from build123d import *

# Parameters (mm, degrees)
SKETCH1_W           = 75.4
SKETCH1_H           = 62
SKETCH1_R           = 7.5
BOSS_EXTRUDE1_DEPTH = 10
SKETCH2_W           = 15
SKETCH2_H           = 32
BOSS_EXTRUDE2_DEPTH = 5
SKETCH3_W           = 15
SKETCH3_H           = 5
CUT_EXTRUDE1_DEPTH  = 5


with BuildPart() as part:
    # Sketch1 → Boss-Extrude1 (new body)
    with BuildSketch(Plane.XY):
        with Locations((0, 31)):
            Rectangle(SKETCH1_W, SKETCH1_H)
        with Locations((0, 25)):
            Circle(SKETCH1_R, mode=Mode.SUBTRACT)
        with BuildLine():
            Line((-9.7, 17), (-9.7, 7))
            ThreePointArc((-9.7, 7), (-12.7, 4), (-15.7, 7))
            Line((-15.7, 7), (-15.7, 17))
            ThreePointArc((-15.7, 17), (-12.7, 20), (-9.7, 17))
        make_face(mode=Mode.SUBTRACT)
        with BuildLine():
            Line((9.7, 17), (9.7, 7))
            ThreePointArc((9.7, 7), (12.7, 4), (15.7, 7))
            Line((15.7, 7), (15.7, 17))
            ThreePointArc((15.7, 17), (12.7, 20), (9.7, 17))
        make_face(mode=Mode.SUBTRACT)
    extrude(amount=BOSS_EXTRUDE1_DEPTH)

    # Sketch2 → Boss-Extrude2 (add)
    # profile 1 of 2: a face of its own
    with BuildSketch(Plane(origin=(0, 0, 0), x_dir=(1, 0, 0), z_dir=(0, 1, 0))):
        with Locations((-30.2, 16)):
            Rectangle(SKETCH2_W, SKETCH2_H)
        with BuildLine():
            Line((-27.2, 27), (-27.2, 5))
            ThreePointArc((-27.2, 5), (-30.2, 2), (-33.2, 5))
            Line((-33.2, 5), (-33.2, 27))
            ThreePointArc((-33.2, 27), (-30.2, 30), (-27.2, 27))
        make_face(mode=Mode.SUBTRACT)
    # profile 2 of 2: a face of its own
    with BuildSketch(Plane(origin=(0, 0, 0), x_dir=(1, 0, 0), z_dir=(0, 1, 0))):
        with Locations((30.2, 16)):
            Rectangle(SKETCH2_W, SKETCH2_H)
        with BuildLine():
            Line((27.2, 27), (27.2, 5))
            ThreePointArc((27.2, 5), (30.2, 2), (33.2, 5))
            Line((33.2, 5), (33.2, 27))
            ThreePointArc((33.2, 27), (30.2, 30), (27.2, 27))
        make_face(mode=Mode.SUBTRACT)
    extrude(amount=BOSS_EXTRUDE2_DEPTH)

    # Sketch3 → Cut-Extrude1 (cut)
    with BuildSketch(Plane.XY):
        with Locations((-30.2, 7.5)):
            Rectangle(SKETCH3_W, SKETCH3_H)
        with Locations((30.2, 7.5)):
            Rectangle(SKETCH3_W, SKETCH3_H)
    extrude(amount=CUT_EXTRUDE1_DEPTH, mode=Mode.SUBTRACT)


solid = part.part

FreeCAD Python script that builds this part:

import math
import FreeCAD as App
import Part
import Sketcher
from FreeCAD import Vector

doc = App.newDocument("Part")
params = doc.addObject("Spreadsheet::Sheet", "Params")
for row, (alias, value) in enumerate([
    ("sketch1_diameter", "15 mm"),
    ("sketch1_radius", "3 mm"),
    ("sketch1_height", "62 mm"),
    ("sketch1_height2", "10 mm"),
    ("sketch1_width", "75.4 mm"),
    ("pad1_length", "10 mm"),
    ("sketch2_radius", "3 mm"),
    ("sketch2_width", "15 mm"),
    ("sketch2_height", "32 mm"),
    ("sketch2_height2", "22 mm"),
    ("pad2_length", "5 mm"),
    ("sketch3_width", "15 mm"),
    ("sketch3_height", "5 mm"),
    ("pocket1_length", "5 mm"),
], start=1):
    params.set(f"A{row}", alias)
    params.set(f"B{row}", "=" + value)
    params.setAlias(f"B{row}", alias)

body = doc.addObject("PartDesign::Body", "Body")

# Sketch on XY plane
sketch1 = doc.addObject("Sketcher::SketchObject", "Sketch")
body.addObject(sketch1)
sketch1.AttachmentSupport = (doc.XY_Plane, [""])
sketch1.MapMode = "FlatFace"
sketch1.addGeometry([
    Part.LineSegment(Vector(-37.7, 62, 0), Vector(-37.7, 0, 0)),  # 0
    Part.LineSegment(Vector(-37.7, 0, 0), Vector(37.7, 0, 0)),  # 1
    Part.LineSegment(Vector(37.7, 0, 0), Vector(37.7, 62, 0)),  # 2
    Part.LineSegment(Vector(37.7, 62, 0), Vector(-37.7, 62, 0)),  # 3
    Part.ArcOfCircle(Part.Circle(Vector(-12.7, 17, 0), Vector(0, 0, 1), 3), math.radians(0), math.radians(180)),  # 4
    Part.LineSegment(Vector(-9.7, 17, 0), Vector(-9.7, 7, 0)),  # 5
    Part.ArcOfCircle(Part.Circle(Vector(-12.7, 7, 0), Vector(0, 0, 1), 3), math.radians(180), math.radians(360)),  # 6
    Part.LineSegment(Vector(-15.7, 7, 0), Vector(-15.7, 17, 0)),  # 7
    Part.LineSegment(Vector(9.7, 7, 0), Vector(9.7, 17, 0)),  # 8
    Part.ArcOfCircle(Part.Circle(Vector(12.7, 17, 0), Vector(0, 0, 1), 3), math.radians(0), math.radians(180)),  # 9
    Part.LineSegment(Vector(15.7, 17, 0), Vector(15.7, 7, 0)),  # 10
    Part.ArcOfCircle(Part.Circle(Vector(12.7, 7, 0), Vector(0, 0, 1), 3), math.radians(180), math.radians(360)),  # 11
    Part.Circle(Vector(0, 25, 0), Vector(0, 0, 1), 7.5),  # 12
], False)
sketch1.addConstraint([
    Sketcher.Constraint("Coincident", 0, 2, 1, 1),
    Sketcher.Constraint("Coincident", 1, 2, 2, 1),
    Sketcher.Constraint("Coincident", 2, 2, 3, 1),
    Sketcher.Constraint("Coincident", 3, 2, 0, 1),
    Sketcher.Constraint("Tangent", 4, 1, 5, 1),
    Sketcher.Constraint("Tangent", 5, 2, 6, 2),
    Sketcher.Constraint("Tangent", 6, 1, 7, 1),
    Sketcher.Constraint("Tangent", 7, 2, 4, 2),
    Sketcher.Constraint("Tangent", 8, 2, 9, 2),
    Sketcher.Constraint("Tangent", 9, 1, 10, 1),
    Sketcher.Constraint("Tangent", 10, 2, 11, 2),
    Sketcher.Constraint("Tangent", 11, 1, 8, 1),
    Sketcher.Constraint("Vertical", 0),
    Sketcher.Constraint("Horizontal", 1),
    Sketcher.Constraint("Vertical", 2),
    Sketcher.Constraint("Horizontal", 3),
    Sketcher.Constraint("Vertical", 5),
    Sketcher.Constraint("Vertical", 7),
    Sketcher.Constraint("Vertical", 8),
    Sketcher.Constraint("Vertical", 10),
    Sketcher.Constraint("Equal", 6, 9),
    Sketcher.Constraint("Symmetric", 0, 2, 1, 2, -1, 1),
    Sketcher.Constraint("Symmetric", 4, 3, 9, 3, -2),
    Sketcher.Constraint("PointOnObject", 12, 3, -2),
    Sketcher.Constraint("Horizontal", 6, 3, 11, 3),
    Sketcher.Constraint("Diameter", 12, 15.0),
    Sketcher.Constraint("Radius", 4, 3.0),
    Sketcher.Constraint("DistanceY", 0, 2, 0, 1, 62.0),
    Sketcher.Constraint("DistanceY", 5, 2, 5, 1, 10.0),
    Sketcher.Constraint("DistanceX", 1, 1, 1, 2, 75.4),
    Sketcher.Constraint("DistanceY", -1, 1, 4, 3, 17.0),
    Sketcher.Constraint("DistanceY", -1, 1, 12, 3, 25.0),
    Sketcher.Constraint("DistanceX", 0, 2, 6, 3, 25.0),
])
sketch1.setExpression("Constraints[25]", "Params.sketch1_diameter")
sketch1.setExpression("Constraints[26]", "Params.sketch1_radius")
sketch1.setExpression("Constraints[27]", "Params.sketch1_height")
sketch1.setExpression("Constraints[28]", "Params.sketch1_height2")
sketch1.setExpression("Constraints[29]", "Params.sketch1_width")
pad1 = doc.addObject("PartDesign::Pad", "Pad")
body.addObject(pad1)
pad1.Profile = sketch1
pad1.setExpression("Length", "Params.pad1_length")

# Sketch on XZ plane
sketch2 = doc.addObject("Sketcher::SketchObject", "Sketch001")
body.addObject(sketch2)
sketch2.AttachmentSupport = (doc.XZ_Plane, [""])
sketch2.MapMode = "FlatFace"
sketch2.addGeometry([
    Part.LineSegment(Vector(-37.7, -32, 0), Vector(-37.7, 0, 0)),  # 0
    Part.LineSegment(Vector(-37.7, 0, 0), Vector(-22.7, 0, 0)),  # 1
    Part.LineSegment(Vector(-22.7, 0, 0), Vector(-22.7, -32, 0)),  # 2
    Part.LineSegment(Vector(-22.7, -32, 0), Vector(-37.7, -32, 0)),  # 3
    Part.ArcOfCircle(Part.Circle(Vector(-30.2, -27, 0), Vector(0, 0, 1), 3), math.radians(180), math.radians(360)),  # 4
    Part.LineSegment(Vector(-27.2, -27, 0), Vector(-27.2, -5, 0)),  # 5
    Part.ArcOfCircle(Part.Circle(Vector(-30.2, -5, 0), Vector(0, 0, 1), 3), math.radians(0), math.radians(180)),  # 6
    Part.LineSegment(Vector(-33.2, -5, 0), Vector(-33.2, -27, 0)),  # 7
    Part.LineSegment(Vector(22.7, -32, 0), Vector(22.7, 0, 0)),  # 8
    Part.LineSegment(Vector(22.7, 0, 0), Vector(37.7, 0, 0)),  # 9
    Part.LineSegment(Vector(37.7, 0, 0), Vector(37.7, -32, 0)),  # 10
    Part.LineSegment(Vector(37.7, -32, 0), Vector(22.7, -32, 0)),  # 11
    Part.LineSegment(Vector(27.2, -5, 0), Vector(27.2, -27, 0)),  # 12
    Part.ArcOfCircle(Part.Circle(Vector(30.2, -27, 0), Vector(0, 0, 1), 3), math.radians(180), math.radians(360)),  # 13
    Part.LineSegment(Vector(33.2, -27, 0), Vector(33.2, -5, 0)),  # 14
    Part.ArcOfCircle(Part.Circle(Vector(30.2, -5, 0), Vector(0, 0, 1), 3), math.radians(0), math.radians(180)),  # 15
], False)
sketch2.addConstraint([
    Sketcher.Constraint("Coincident", 0, 2, 1, 1),
    Sketcher.Constraint("Coincident", 1, 2, 2, 1),
    Sketcher.Constraint("Coincident", 2, 2, 3, 1),
    Sketcher.Constraint("Coincident", 3, 2, 0, 1),
    Sketcher.Constraint("Tangent", 4, 2, 5, 1),
    Sketcher.Constraint("Tangent", 5, 2, 6, 1),
    Sketcher.Constraint("Tangent", 6, 2, 7, 1),
    Sketcher.Constraint("Tangent", 7, 2, 4, 1),
    Sketcher.Constraint("Coincident", 8, 2, 9, 1),
    Sketcher.Constraint("Coincident", 9, 2, 10, 1),
    Sketcher.Constraint("Coincident", 10, 2, 11, 1),
    Sketcher.Constraint("Coincident", 11, 2, 8, 1),
    Sketcher.Constraint("Tangent", 12, 2, 13, 1),
    Sketcher.Constraint("Tangent", 13, 2, 14, 1),
    Sketcher.Constraint("Tangent", 14, 2, 15, 1),
    Sketcher.Constraint("Tangent", 15, 2, 12, 1),
    Sketcher.Constraint("Vertical", 0),
    Sketcher.Constraint("Horizontal", 1),
    Sketcher.Constraint("Vertical", 2),
    Sketcher.Constraint("Horizontal", 3),
    Sketcher.Constraint("Vertical", 5),
    Sketcher.Constraint("Vertical", 7),
    Sketcher.Constraint("Vertical", 8),
    Sketcher.Constraint("Horizontal", 9),
    Sketcher.Constraint("Vertical", 10),
    Sketcher.Constraint("Horizontal", 11),
    Sketcher.Constraint("Vertical", 12),
    Sketcher.Constraint("Vertical", 14),
    Sketcher.Constraint("Equal", 6, 13),
    Sketcher.Constraint("Symmetric", 1, 2, 8, 2, -1, 1),
    Sketcher.Constraint("Symmetric", 4, 3, 13, 3, -2),
    Sketcher.Constraint("Symmetric", 0, 2, 9, 2, -2),
    Sketcher.Constraint("Horizontal", 6, 3, 15, 3),
    Sketcher.Constraint("Horizontal", 3, 2, 10, 2),
    Sketcher.Constraint("Radius", 4, 3.0),
    Sketcher.Constraint("DistanceX", 1, 1, 1, 2, 15.0),
    Sketcher.Constraint("DistanceY", 0, 1, 0, 2, 32.0),
    Sketcher.Constraint("DistanceY", 5, 1, 5, 2, 22.0),
    Sketcher.Constraint("DistanceY", 4, 3, -1, 1, 27.0),
    Sketcher.Constraint("DistanceX", 4, 3, -1, 1, 30.2),
    Sketcher.Constraint("DistanceX", 0, 2, -1, 1, 37.7),
])
sketch2.setExpression("Constraints[34]", "Params.sketch2_radius")
sketch2.setExpression("Constraints[35]", "Params.sketch2_width")
sketch2.setExpression("Constraints[36]", "Params.sketch2_height")
sketch2.setExpression("Constraints[37]", "Params.sketch2_height2")
pad2 = doc.addObject("PartDesign::Pad", "Pad001")
body.addObject(pad2)
pad2.Profile = sketch2
pad2.setExpression("Length", "Params.pad2_length")
pad2.Reversed = True

# Sketch on XY plane
sketch3 = doc.addObject("Sketcher::SketchObject", "Sketch002")
body.addObject(sketch3)
sketch3.AttachmentSupport = (doc.XY_Plane, [""])
sketch3.MapMode = "FlatFace"
sketch3.addGeometry([
    Part.LineSegment(Vector(-38, 10, 0), Vector(-38, 5, 0)),  # 0
    Part.LineSegment(Vector(-38, 5, 0), Vector(-23, 5, 0)),  # 1
    Part.LineSegment(Vector(-23, 5, 0), Vector(-23, 10, 0)),  # 2
    Part.LineSegment(Vector(-23, 10, 0), Vector(-38, 10, 0)),  # 3
    Part.LineSegment(Vector(23, 10, 0), Vector(23, 5, 0)),  # 4
    Part.LineSegment(Vector(23, 5, 0), Vector(38, 5, 0)),  # 5
    Part.LineSegment(Vector(38, 5, 0), Vector(38, 10, 0)),  # 6
    Part.LineSegment(Vector(38, 10, 0), Vector(23, 10, 0)),  # 7
], False)
sketch3.addConstraint([
    Sketcher.Constraint("Coincident", 0, 2, 1, 1),
    Sketcher.Constraint("Coincident", 1, 2, 2, 1),
    Sketcher.Constraint("Coincident", 2, 2, 3, 1),
    Sketcher.Constraint("Coincident", 3, 2, 0, 1),
    Sketcher.Constraint("Coincident", 4, 2, 5, 1),
    Sketcher.Constraint("Coincident", 5, 2, 6, 1),
    Sketcher.Constraint("Coincident", 6, 2, 7, 1),
    Sketcher.Constraint("Coincident", 7, 2, 4, 1),
    Sketcher.Constraint("Vertical", 0),
    Sketcher.Constraint("Horizontal", 1),
    Sketcher.Constraint("Vertical", 2),
    Sketcher.Constraint("Horizontal", 3),
    Sketcher.Constraint("Vertical", 4),
    Sketcher.Constraint("Horizontal", 5),
    Sketcher.Constraint("Vertical", 6),
    Sketcher.Constraint("Horizontal", 7),
    Sketcher.Constraint("Symmetric", 1, 2, 4, 2, -2),
    Sketcher.Constraint("Symmetric", 3, 2, 6, 2, -2),
    Sketcher.Constraint("DistanceX", 1, 1, 1, 2, 15.0),
    Sketcher.Constraint("DistanceY", 0, 2, 0, 1, 5.0),
    Sketcher.Constraint("DistanceY", -1, 1, 0, 2, 5.0),
    Sketcher.Constraint("DistanceX", 0, 2, -1, 1, 37.7),
])
sketch3.setExpression("Constraints[18]", "Params.sketch3_width")
sketch3.setExpression("Constraints[19]", "Params.sketch3_height")
pocket1 = doc.addObject("PartDesign::Pocket", "Pocket")
body.addObject(pocket1)
pocket1.Profile = sketch3
pocket1.setExpression("Length", "Params.pocket1_length")
pocket1.Reversed = True

doc.recompute()
